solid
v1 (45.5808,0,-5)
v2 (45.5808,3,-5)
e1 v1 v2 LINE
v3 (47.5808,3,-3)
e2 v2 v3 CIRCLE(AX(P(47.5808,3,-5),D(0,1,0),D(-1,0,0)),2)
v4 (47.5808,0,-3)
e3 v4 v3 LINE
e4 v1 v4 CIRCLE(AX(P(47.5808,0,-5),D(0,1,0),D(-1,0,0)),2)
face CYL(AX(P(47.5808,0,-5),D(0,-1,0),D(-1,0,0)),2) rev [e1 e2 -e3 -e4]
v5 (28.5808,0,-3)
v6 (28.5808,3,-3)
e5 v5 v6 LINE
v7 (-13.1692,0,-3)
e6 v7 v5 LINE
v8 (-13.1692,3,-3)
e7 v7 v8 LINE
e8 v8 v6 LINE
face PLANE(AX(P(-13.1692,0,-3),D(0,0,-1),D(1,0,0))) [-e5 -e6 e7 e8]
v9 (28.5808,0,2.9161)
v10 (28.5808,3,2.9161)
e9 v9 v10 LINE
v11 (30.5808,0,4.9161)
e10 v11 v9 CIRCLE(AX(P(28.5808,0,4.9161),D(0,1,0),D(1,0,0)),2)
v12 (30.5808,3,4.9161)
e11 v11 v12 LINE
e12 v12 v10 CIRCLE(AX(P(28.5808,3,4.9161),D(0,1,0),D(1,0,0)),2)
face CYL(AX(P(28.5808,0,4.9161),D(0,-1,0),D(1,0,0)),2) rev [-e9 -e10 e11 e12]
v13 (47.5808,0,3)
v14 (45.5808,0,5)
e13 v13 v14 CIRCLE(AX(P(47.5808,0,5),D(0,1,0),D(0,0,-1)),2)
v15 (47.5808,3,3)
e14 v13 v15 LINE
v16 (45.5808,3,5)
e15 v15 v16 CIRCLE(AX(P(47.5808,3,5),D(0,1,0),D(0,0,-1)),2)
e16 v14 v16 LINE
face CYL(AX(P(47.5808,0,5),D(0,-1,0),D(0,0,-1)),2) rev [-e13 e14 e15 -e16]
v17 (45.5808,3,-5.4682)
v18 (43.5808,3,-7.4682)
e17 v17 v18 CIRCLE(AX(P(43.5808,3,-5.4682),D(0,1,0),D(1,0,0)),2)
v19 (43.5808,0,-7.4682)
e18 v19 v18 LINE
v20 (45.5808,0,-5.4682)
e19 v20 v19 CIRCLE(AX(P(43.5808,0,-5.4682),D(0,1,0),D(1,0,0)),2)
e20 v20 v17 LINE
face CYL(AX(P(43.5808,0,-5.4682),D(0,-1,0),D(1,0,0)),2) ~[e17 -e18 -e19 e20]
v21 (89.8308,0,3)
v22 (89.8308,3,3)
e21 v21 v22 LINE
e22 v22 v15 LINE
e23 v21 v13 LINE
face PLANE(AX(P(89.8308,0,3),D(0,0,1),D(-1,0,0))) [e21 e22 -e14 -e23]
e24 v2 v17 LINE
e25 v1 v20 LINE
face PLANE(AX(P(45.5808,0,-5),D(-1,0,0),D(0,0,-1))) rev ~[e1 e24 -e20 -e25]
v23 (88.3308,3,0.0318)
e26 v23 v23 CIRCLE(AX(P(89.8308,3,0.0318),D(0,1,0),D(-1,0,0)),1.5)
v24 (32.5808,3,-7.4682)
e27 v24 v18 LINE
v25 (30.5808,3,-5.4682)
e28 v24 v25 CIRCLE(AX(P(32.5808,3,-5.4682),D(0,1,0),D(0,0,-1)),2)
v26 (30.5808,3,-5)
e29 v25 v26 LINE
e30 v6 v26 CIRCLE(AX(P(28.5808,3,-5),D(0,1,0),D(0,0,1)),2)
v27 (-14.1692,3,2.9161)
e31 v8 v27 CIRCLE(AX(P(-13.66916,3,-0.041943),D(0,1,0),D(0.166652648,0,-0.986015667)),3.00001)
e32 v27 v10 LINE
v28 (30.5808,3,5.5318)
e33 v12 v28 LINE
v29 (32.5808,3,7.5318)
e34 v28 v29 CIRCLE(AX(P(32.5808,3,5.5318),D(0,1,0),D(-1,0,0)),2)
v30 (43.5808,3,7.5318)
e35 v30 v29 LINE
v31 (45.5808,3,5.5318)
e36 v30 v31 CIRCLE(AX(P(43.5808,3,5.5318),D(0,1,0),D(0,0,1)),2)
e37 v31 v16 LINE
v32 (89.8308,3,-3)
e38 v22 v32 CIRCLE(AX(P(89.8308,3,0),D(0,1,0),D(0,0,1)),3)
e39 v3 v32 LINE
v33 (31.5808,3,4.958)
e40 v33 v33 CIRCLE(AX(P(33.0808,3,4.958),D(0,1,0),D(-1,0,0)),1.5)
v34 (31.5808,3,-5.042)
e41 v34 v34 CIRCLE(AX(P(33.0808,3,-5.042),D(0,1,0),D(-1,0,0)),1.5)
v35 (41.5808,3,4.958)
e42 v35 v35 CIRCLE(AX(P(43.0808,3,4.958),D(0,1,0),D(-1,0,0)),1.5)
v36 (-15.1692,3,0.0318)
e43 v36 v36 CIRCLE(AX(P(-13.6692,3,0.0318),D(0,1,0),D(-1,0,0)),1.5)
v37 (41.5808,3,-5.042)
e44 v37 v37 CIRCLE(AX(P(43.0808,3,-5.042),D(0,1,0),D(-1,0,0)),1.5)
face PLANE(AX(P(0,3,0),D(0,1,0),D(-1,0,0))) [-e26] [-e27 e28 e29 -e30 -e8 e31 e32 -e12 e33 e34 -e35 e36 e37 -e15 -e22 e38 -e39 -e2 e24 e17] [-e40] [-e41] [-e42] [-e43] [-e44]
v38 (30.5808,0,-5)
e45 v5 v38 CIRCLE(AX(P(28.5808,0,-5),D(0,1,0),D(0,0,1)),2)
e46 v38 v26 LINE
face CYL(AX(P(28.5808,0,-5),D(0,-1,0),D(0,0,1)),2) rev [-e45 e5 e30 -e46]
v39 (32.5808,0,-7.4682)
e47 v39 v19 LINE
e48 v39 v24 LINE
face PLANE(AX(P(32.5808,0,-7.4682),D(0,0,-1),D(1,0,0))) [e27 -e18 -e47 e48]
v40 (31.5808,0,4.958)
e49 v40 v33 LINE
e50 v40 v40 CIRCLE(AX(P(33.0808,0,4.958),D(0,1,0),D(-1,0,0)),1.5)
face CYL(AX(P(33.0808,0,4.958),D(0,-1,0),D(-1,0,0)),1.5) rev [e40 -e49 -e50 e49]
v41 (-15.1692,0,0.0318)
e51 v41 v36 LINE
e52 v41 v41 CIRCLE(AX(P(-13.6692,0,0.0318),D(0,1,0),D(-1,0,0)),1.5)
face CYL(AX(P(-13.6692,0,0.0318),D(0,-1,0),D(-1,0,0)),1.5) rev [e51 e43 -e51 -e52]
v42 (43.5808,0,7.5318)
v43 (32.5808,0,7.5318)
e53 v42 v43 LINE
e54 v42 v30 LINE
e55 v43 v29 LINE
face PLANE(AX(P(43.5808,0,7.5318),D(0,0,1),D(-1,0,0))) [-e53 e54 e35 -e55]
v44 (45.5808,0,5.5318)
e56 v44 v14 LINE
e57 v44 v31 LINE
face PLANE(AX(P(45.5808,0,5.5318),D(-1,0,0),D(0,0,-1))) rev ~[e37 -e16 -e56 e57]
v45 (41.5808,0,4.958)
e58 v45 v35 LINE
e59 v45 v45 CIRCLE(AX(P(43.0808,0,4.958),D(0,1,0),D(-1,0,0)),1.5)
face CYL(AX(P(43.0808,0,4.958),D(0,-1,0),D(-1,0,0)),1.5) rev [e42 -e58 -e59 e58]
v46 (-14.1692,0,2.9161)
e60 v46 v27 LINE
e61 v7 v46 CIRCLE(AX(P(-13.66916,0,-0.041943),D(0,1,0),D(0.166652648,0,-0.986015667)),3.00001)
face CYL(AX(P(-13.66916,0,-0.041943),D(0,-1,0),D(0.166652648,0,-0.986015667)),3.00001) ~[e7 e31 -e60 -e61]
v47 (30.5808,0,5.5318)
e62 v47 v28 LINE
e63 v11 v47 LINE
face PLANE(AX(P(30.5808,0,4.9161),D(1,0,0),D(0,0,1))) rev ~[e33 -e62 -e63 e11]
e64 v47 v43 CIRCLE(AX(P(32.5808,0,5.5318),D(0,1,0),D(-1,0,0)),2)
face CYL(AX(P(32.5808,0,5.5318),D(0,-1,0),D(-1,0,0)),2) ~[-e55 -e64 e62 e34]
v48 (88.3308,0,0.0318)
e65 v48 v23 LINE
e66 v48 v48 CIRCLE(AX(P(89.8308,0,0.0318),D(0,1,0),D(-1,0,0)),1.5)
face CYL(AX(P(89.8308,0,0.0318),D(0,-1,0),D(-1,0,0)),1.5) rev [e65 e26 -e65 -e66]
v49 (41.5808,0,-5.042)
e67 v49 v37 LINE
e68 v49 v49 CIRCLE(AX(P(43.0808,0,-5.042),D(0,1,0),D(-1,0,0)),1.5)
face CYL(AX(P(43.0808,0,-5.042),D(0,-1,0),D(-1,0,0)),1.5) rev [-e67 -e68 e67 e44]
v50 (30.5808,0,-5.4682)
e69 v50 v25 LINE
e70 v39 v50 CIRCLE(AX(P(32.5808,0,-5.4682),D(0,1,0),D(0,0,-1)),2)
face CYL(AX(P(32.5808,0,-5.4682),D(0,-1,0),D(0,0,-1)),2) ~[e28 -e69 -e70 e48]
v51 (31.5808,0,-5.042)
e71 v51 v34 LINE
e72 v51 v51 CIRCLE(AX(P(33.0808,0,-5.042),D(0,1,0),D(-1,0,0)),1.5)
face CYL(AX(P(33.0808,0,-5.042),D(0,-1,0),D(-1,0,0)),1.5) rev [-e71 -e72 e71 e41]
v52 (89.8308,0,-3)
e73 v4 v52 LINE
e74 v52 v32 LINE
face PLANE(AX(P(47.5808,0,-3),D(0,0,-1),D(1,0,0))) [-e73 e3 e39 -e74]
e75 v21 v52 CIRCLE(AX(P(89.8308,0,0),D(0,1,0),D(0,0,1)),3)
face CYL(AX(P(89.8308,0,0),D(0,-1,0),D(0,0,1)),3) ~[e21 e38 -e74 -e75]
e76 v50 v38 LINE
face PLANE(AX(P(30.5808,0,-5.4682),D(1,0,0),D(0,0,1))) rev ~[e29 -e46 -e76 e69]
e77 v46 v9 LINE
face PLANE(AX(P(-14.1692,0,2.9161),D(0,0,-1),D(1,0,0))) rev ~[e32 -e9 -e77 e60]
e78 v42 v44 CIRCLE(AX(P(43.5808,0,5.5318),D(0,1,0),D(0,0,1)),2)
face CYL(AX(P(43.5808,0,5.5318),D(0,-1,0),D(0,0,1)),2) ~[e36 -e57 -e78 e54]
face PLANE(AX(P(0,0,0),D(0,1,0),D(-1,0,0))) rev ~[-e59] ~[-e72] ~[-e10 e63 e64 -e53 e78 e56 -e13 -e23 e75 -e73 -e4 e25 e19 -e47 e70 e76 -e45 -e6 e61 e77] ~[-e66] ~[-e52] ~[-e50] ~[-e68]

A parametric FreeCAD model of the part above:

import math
import FreeCAD as App
import Part
import Sketcher

V = App.Vector

doc = App.newDocument("Part")
params = doc.addObject("Spreadsheet::Sheet", "Params")
for row, (alias, value) in enumerate([
    ("sketch1_diameter", "3 mm"),
    ("sketch1_radius", "3 mm"),
    ("sketch1_radius2", "2 mm"),
    ("sketch1_width", "42.25 mm"),
    ("sketch1_width2", "41.75 mm"),
    ("pad1_length", "3 mm"),
], start=1):
    params.set(f"A{row}", alias)
    params.set(f"B{row}", "=" + value)
    params.setAlias(f"B{row}", alias)

body = doc.addObject("PartDesign::Body", "Body")

# Sketch on XZ plane
sketch1 = body.newObject("Sketcher::SketchObject", "Sketch")
sketch1.AttachmentSupport = (doc.getObject("XZ_Plane"), [""])
sketch1.MapMode = "FlatFace"
sketch1.addGeometry(Part.LineSegment(V(28.58, -3, 0), V(-13.17, -3, 0)), False)
sketch1.addGeometry(Part.ArcOfCircle(Part.Circle(V(-13.67, -0.04, 0), V(0, 0, 1), 3), math.radians(100), math.radians(280)), False)
sketch1.addGeometry(Part.LineSegment(V(-14.17, 2.92, 0), V(28.58, 2.92, 0)), False)
sketch1.addGeometry(Part.ArcOfCircle(Part.Circle(V(28.58, 4.92, 0), V(0, 0, 1), 2), math.radians(-90), math.radians(0)), False)
sketch1.addGeometry(Part.LineSegment(V(30.58, 4.92, 0), V(30.58, 5.53, 0)), False)
sketch1.addGeometry(Part.ArcOfCircle(Part.Circle(V(32.58, 5.53, 0), V(0, 0, 1), 2), math.radians(90), math.radians(180)), False)
sketch1.addGeometry(Part.LineSegment(V(32.58, 7.53, 0), V(43.58, 7.53, 0)), False)
sketch1.addGeometry(Part.ArcOfCircle(Part.Circle(V(43.58, 5.53, 0), V(0, 0, 1), 2), math.radians(0), math.radians(90)), False)
sketch1.addGeometry(Part.LineSegment(V(45.58, 5.53, 0), V(45.58, 5, 0)), False)
sketch1.addGeometry(Part.ArcOfCircle(Part.Circle(V(47.58, 5, 0), V(0, 0, 1), 2), math.radians(180), math.radians(270)), False)
sketch1.addGeometry(Part.LineSegment(V(47.58, 3, 0), V(89.83, 3, 0)), False)
sketch1.addGeometry(Part.ArcOfCircle(Part.Circle(V(89.83, 0, 0), V(0, 0, 1), 3), math.radians(-90), math.radians(90)), False)
sketch1.addGeometry(Part.LineSegment(V(89.83, -3, 0), V(47.58, -3, 0)), False)
sketch1.addGeometry(Part.ArcOfCircle(Part.Circle(V(47.58, -5, 0), V(0, 0, 1), 2), math.radians(90), math.radians(180)), False)
sketch1.addGeometry(Part.LineSegment(V(45.58, -5, 0), V(45.58, -5.47, 0)), False)
sketch1.addGeometry(Part.ArcOfCircle(Part.Circle(V(43.58, -5.47, 0), V(0, 0, 1), 2), math.radians(-90), math.radians(0)), False)
sketch1.addGeometry(Part.LineSegment(V(43.58, -7.47, 0), V(32.58, -7.47, 0)), False)
sketch1.addGeometry(Part.ArcOfCircle(Part.Circle(V(32.58, -5.47, 0), V(0, 0, 1), 2), math.radians(180), math.radians(270)), False)
sketch1.addGeometry(Part.LineSegment(V(30.58, -5.47, 0), V(30.58, -5, 0)), False)
sketch1.addGeometry(Part.ArcOfCircle(Part.Circle(V(28.58, -5, 0), V(0, 0, 1), 2), math.radians(0), math.radians(90)), False)
sketch1.addGeometry(Part.Circle(V(43.08, -5.04, 0), V(0, 0, 1), 1.5), False)
sketch1.addGeometry(Part.Circle(V(33.08, -5.04, 0), V(0, 0, 1), 1.5), False)
sketch1.addGeometry(Part.Circle(V(89.83, 0.03, 0), V(0, 0, 1), 1.5), False)
sketch1.addGeometry(Part.Circle(V(43.08, 4.96, 0), V(0, 0, 1), 1.5), False)
sketch1.addGeometry(Part.Circle(V(-13.67, 0.03, 0), V(0, 0, 1), 1.5), False)
sketch1.addGeometry(Part.Circle(V(33.08, 4.96, 0), V(0, 0, 1), 1.5), False)
sketch1.addConstraint(Sketcher.Constraint("Coincident", 0, 2, 1, 2))
sketch1.addConstraint(Sketcher.Constraint("Coincident", 1, 1, 2, 1))
sketch1.addConstraint(Sketcher.Constraint("Tangent", 2, 2, 3, 1))
sketch1.addConstraint(Sketcher.Constraint("Tangent", 3, 2, 4, 1))
sketch1.addConstraint(Sketcher.Constraint("Tangent", 4, 2, 5, 2))
sketch1.addConstraint(Sketcher.Constraint("Tangent", 5, 1, 6, 1))
sketch1.addConstraint(Sketcher.Constraint("Tangent", 6, 2, 7, 2))
sketch1.addConstraint(Sketcher.Constraint("Tangent", 7, 1, 8, 1))
sketch1.addConstraint(Sketcher.Constraint("Tangent", 8, 2, 9, 1))
sketch1.addConstraint(Sketcher.Constraint("Tangent", 9, 2, 10, 1))
sketch1.addConstraint(Sketcher.Constraint("Tangent", 10, 2, 11, 2))
sketch1.addConstraint(Sketcher.Constraint("Tangent", 11, 1, 12, 1))
sketch1.addConstraint(Sketcher.Constraint("Tangent", 12, 2, 13, 1))
sketch1.addConstraint(Sketcher.Constraint("Tangent", 13, 2, 14, 1))
sketch1.addConstraint(Sketcher.Constraint("Tangent", 14, 2, 15, 2))
sketch1.addConstraint(Sketcher.Constraint("Tangent", 15, 1, 16, 1))
sketch1.addConstraint(Sketcher.Constraint("Tangent", 16, 2, 17, 2))
sketch1.addConstraint(Sketcher.Constraint("Tangent", 17, 1, 18, 1))
sketch1.addConstraint(Sketcher.Constraint("Tangent", 18, 2, 19, 1))
sketch1.addConstraint(Sketcher.Constraint("Tangent", 19, 2, 0, 1))
sketch1.addConstraint(Sketcher.Constraint("Horizontal", 0))
sketch1.addConstraint(Sketcher.Constraint("Horizontal", 2))
sketch1.addConstraint(Sketcher.Constraint("Vertical", 4))
sketch1.addConstraint(Sketcher.Constraint("Horizontal", 6))
sketch1.addConstraint(Sketcher.Constraint("Vertical", 8))
sketch1.addConstraint(Sketcher.Constraint("Horizontal", 10))
sketch1.addConstraint(Sketcher.Constraint("Horizontal", 12))
sketch1.addConstraint(Sketcher.Constraint("Vertical", 14))
sketch1.addConstraint(Sketcher.Constraint("Horizontal", 16))
sketch1.addConstraint(Sketcher.Constraint("Vertical", 18))
sketch1.addConstraint(Sketcher.Constraint("Equal", 3, 5))
sketch1.addConstraint(Sketcher.Constraint("Equal", 5, 7))
sketch1.addConstraint(Sketcher.Constraint("Equal", 7, 9))
sketch1.addConstraint(Sketcher.Constraint("Equal", 1, 11))
sketch1.addConstraint(Sketcher.Constraint("Equal", 9, 13))
sketch1.addConstraint(Sketcher.Constraint("Equal", 13, 15))
sketch1.addConstraint(Sketcher.Constraint("Equal", 15, 17))
sketch1.addConstraint(Sketcher.Constraint("Equal", 17, 19))
sketch1.addConstraint(Sketcher.Constraint("Equal", 20, 21))
sketch1.addConstraint(Sketcher.Constraint("Equal", 21, 22))
sketch1.addConstraint(Sketcher.Constraint("Equal", 22, 23))
sketch1.addConstraint(Sketcher.Constraint("Equal", 23, 24))
sketch1.addConstraint(Sketcher.Constraint("Equal", 24, 25))
sketch1.addConstraint(Sketcher.Constraint("Symmetric", 9, 3, 13, 3, -1))
sketch1.addConstraint(Sketcher.Constraint("Horizontal", 13, 3, 19, 3))
sketch1.addConstraint(Sketcher.Constraint("Horizontal", 20, 3, 21, 3))
sketch1.addConstraint(Sketcher.Constraint("Horizontal", 22, 3, 24, 3))
sketch1.addConstraint(Sketcher.Constraint("Horizontal", 23, 3, 25, 3))
sketch1.addConstraint(Sketcher.Constraint("Vertical", 5, 3, 17, 3))
sketch1.addConstraint(Sketcher.Constraint("Vertical", 11, 3, 22, 3))
sketch1.addConstraint(Sketcher.Constraint("Vertical", 20, 3, 23, 3))
sketch1.addConstraint(Sketcher.Constraint("Vertical", 1, 3, 24, 3))
sketch1.addConstraint(Sketcher.Constraint("Vertical", 21, 3, 25, 3))
sketch1.addConstraint(Sketcher.Constraint("Diameter", 20, 3.0))
sketch1.addConstraint(Sketcher.Constraint("Radius", 1, 3.0))
sketch1.addConstraint(Sketcher.Constraint("Radius", 3, 2.0))
sketch1.addConstraint(Sketcher.Constraint("DistanceX", 3, 3, 7, 3, 15.0))
sketch1.addConstraint(Sketcher.Constraint("DistanceX", 21, 3, 20, 3, 10.0))
sketch1.addConstraint(Sketcher.Constraint("DistanceY", 20, 3, 23, 3, 10.0))
sketch1.addConstraint(Sketcher.Constraint("DistanceX", 10, 1, 10, 2, 42.25))
sketch1.addConstraint(Sketcher.Constraint("DistanceX", 1, 3, 11, 3, 103.5))
sketch1.addConstraint(Sketcher.Constraint("DistanceY", 15, 3, 7, 3, 11.0))
sketch1.addConstraint(Sketcher.Constraint("DistanceX", 1, 1, 0, 2, 1.0))
sketch1.addConstraint(Sketcher.Constraint("DistanceX", 0, 2, 0, 1, 41.75))
sketch1.addConstraint(Sketcher.Constraint("DistanceX", 20, 3, 15, 3, 0.5))
sketch1.addConstraint(Sketcher.Constraint("DistanceY", 22, 3, 7, 3, 5.5))
sketch1.addConstraint(Sketcher.Constraint("DistanceY", 4, 1, 4, 2, 0.6157))
sketch1.addConstraint(Sketcher.Constraint("DistanceY", 20, 3, -1, 1, 5.042))
sketch1.addConstraint(Sketcher.Constraint("DistanceX", 1, 3, -1, 1, 13.6692))
sketch1.setExpression("Constraints[53]", "Params.sketch1_diameter")
sketch1.setExpression("Constraints[54]", "Params.sketch1_radius")
sketch1.setExpression("Constraints[55]", "Params.sketch1_radius2")
sketch1.setExpression("Constraints[59]", "Params.sketch1_width")
sketch1.setExpression("Constraints[63]", "Params.sketch1_width2")
pad1 = body.newObject("PartDesign::Pad", "Pad")
pad1.Profile = sketch1
pad1.setExpression("Length", "Params.pad1_length")
pad1.Reversed = True

doc.recompute()
